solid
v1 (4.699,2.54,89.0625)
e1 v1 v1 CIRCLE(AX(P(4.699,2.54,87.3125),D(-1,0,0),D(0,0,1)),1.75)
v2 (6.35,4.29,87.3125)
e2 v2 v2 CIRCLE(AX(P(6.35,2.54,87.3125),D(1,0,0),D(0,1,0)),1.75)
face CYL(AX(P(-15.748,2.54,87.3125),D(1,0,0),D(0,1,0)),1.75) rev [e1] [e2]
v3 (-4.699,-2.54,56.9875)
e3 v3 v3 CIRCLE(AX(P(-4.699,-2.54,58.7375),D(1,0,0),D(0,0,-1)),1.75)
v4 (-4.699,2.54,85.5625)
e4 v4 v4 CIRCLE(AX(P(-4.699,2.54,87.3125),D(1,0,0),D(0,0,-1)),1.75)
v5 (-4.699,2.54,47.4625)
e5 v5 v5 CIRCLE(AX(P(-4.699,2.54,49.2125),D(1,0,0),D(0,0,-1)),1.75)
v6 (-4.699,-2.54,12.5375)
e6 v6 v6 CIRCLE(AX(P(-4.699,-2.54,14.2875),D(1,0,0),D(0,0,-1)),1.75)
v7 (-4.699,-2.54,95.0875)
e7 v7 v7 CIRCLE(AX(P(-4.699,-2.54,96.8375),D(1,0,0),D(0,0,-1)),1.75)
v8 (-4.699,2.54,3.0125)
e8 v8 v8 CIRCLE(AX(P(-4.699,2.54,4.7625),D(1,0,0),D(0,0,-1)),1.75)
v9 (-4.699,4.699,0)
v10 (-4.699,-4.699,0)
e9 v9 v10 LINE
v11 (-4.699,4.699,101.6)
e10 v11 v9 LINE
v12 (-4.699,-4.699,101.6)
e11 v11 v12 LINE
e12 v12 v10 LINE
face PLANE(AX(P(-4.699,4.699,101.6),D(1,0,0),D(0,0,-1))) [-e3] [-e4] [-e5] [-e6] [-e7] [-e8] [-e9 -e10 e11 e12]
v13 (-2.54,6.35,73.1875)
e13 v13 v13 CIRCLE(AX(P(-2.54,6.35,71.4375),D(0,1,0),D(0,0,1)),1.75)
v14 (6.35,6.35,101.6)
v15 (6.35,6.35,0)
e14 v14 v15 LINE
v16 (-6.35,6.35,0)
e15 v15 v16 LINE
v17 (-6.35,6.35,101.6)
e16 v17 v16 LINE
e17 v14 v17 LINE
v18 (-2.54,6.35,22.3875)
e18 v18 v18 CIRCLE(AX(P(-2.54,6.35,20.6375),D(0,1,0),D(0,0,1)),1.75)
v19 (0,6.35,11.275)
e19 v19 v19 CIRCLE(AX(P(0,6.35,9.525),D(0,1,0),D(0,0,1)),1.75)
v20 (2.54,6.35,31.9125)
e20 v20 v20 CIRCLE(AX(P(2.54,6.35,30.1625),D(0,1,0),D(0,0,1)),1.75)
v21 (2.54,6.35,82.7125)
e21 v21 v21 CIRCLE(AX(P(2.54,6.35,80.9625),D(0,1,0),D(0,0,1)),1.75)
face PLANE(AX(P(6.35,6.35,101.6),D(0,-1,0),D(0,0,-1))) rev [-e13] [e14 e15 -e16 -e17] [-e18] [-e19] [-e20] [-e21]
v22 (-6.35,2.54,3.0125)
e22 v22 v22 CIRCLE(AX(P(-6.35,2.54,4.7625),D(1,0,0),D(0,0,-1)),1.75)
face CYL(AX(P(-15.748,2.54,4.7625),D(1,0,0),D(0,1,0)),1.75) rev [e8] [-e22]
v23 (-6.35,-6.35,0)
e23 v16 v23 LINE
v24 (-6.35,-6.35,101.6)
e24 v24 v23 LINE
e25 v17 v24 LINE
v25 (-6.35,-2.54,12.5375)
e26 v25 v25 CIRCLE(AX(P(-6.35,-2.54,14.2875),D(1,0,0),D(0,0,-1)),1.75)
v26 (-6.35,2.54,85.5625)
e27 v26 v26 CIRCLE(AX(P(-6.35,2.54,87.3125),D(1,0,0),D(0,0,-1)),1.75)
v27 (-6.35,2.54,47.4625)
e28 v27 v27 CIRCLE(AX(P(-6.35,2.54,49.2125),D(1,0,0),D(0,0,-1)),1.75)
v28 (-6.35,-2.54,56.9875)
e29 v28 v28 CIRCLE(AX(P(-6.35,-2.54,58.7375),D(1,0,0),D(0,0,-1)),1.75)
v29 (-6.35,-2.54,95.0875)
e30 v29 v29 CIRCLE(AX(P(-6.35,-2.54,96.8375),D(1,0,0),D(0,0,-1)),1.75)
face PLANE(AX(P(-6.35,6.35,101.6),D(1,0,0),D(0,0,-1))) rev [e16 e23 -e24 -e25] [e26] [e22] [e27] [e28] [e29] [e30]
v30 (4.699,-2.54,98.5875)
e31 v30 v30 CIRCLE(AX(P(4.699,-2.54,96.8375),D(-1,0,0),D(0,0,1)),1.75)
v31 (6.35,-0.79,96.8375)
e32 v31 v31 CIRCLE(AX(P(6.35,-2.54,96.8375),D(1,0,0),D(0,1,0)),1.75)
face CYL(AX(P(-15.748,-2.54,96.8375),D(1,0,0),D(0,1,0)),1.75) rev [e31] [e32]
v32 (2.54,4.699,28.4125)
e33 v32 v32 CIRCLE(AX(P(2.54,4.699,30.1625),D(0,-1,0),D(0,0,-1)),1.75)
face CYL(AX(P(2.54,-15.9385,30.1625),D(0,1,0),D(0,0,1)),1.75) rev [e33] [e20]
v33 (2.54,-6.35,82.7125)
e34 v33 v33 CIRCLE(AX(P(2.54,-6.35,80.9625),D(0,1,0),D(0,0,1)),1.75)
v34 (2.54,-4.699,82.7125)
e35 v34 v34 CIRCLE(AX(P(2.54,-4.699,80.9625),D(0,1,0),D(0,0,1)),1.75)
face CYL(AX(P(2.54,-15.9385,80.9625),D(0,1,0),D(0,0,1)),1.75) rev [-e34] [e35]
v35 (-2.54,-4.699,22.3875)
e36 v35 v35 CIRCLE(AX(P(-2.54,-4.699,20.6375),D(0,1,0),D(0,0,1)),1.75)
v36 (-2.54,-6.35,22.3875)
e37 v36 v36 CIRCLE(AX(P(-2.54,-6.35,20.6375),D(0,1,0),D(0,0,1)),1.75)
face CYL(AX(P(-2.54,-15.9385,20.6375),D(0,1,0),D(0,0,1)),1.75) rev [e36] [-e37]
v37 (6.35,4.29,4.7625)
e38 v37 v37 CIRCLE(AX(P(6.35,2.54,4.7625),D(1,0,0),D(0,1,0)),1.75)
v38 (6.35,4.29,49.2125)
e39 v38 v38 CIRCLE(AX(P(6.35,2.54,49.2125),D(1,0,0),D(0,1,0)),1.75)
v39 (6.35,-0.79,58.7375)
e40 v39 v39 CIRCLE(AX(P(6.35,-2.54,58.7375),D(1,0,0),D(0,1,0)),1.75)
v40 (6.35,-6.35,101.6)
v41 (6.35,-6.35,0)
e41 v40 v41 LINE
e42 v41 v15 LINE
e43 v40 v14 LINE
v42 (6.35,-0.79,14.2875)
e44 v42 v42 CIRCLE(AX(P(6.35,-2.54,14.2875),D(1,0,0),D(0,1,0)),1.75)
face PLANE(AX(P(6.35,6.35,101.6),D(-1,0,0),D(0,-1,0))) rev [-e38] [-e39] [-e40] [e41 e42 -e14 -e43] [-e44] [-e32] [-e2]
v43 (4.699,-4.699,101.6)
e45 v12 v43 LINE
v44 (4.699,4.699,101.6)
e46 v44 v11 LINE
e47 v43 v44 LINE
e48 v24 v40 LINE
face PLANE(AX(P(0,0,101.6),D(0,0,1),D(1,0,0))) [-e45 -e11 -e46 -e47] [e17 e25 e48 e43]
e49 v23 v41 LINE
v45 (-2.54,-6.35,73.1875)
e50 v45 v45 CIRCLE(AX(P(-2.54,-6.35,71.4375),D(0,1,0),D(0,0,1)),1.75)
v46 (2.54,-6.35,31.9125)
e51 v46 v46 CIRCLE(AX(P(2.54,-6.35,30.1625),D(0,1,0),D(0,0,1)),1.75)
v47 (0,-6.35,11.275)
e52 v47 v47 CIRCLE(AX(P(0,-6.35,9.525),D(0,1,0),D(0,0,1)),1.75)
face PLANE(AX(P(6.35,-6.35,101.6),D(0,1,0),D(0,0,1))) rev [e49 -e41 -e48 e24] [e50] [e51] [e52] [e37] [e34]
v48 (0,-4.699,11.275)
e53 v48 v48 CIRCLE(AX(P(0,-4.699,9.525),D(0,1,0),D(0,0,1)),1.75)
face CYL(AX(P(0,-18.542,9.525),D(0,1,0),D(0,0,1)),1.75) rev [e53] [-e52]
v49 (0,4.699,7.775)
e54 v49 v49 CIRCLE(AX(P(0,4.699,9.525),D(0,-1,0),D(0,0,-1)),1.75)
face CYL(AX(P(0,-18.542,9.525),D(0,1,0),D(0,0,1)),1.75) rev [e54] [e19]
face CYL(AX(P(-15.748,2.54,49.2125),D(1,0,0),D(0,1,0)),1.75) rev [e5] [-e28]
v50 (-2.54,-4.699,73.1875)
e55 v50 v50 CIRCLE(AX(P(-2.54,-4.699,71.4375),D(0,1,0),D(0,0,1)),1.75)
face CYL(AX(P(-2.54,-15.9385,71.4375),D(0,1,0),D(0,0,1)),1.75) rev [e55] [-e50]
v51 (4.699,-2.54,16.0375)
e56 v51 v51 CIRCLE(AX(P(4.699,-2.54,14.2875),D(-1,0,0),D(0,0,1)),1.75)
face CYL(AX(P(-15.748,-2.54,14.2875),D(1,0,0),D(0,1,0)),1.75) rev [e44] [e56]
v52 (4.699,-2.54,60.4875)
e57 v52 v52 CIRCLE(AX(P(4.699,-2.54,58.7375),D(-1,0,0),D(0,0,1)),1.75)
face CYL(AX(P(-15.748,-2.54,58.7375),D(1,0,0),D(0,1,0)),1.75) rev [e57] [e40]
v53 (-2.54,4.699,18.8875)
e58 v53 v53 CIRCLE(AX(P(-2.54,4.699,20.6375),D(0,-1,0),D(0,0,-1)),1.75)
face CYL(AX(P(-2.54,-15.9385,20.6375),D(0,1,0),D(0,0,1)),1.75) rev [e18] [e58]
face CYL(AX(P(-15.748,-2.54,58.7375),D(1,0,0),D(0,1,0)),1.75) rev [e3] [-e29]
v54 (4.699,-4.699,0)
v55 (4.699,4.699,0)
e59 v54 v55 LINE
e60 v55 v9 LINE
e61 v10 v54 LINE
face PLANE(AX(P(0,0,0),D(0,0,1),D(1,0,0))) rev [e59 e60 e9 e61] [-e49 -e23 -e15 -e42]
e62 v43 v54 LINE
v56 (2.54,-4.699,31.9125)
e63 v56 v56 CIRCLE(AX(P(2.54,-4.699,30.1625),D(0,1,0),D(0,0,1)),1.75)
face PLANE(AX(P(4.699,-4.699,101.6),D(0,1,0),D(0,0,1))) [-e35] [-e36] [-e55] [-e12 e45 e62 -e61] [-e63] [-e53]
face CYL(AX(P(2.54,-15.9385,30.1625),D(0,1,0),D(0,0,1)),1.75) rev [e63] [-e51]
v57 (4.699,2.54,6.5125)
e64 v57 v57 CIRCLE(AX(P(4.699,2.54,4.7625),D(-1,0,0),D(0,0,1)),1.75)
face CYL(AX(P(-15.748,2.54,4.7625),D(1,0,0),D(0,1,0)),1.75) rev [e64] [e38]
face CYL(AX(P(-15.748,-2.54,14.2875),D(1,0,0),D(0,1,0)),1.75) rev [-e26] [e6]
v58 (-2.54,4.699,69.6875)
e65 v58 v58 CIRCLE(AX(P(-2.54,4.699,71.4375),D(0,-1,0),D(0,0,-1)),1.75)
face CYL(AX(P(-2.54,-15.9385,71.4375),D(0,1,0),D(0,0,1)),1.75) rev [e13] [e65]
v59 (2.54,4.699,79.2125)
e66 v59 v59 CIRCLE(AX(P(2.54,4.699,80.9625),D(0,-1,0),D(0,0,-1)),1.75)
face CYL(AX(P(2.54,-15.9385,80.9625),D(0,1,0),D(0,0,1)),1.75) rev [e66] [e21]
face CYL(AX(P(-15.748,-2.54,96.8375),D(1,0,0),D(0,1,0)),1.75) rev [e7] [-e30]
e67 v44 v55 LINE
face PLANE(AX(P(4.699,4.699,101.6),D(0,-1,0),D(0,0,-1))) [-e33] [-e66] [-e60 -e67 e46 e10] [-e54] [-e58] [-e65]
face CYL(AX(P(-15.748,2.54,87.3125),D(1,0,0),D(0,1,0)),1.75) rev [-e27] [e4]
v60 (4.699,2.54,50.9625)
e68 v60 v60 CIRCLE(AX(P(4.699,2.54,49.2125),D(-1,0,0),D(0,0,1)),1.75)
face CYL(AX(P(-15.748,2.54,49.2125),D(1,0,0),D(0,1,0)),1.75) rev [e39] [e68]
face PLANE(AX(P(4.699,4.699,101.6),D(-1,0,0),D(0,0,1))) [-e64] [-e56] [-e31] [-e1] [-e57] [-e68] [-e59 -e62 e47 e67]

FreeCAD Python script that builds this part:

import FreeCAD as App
import Part
import Sketcher

V = App.Vector
Q = App.Units.Quantity

doc = App.newDocument("Part")
body = doc.addObject("PartDesign::Body", "Body")

# Sketch on XY plane
sketch1 = doc.addObject("Sketcher::SketchObject", "Sketch")
body.addObject(sketch1)
sketch1.AttachmentSupport = (doc.XY_Plane, [""])
sketch1.MapMode = "FlatFace"
sketch1.addGeometry(Part.LineSegment(V(-6, -6, 0), V(6, -6, 0)), False)
sketch1.addGeometry(Part.LineSegment(V(6, -6, 0), V(6, 6, 0)), False)
sketch1.addGeometry(Part.LineSegment(V(6, 6, 0), V(-6, 6, 0)), False)
sketch1.addGeometry(Part.LineSegment(V(-6, 6, 0), V(-6, -6, 0)), False)
sketch1.addGeometry(Part.LineSegment(V(5, 5, 0), V(5, -5, 0)), False)
sketch1.addGeometry(Part.LineSegment(V(5, -5, 0), V(-5, -5, 0)), False)
sketch1.addGeometry(Part.LineSegment(V(-5, -5, 0), V(-5, 5, 0)), False)
sketch1.addGeometry(Part.LineSegment(V(-5, 5, 0), V(5, 5, 0)), False)
sketch1.addConstraint(Sketcher.Constraint("Coincident", 0, 2, 1, 1))
sketch1.addConstraint(Sketcher.Constraint("Coincident", 1, 2, 2, 1))
sketch1.addConstraint(Sketcher.Constraint("Coincident", 2, 2, 3, 1))
sketch1.addConstraint(Sketcher.Constraint("Coincident", 3, 2, 0, 1))
sketch1.addConstraint(Sketcher.Constraint("Coincident", 4, 2, 5, 1))
sketch1.addConstraint(Sketcher.Constraint("Coincident", 5, 2, 6, 1))
sketch1.addConstraint(Sketcher.Constraint("Coincident", 6, 2, 7, 1))
sketch1.addConstraint(Sketcher.Constraint("Coincident", 7, 2, 4, 1))
sketch1.addConstraint(Sketcher.Constraint("Horizontal", 0))
sketch1.addConstraint(Sketcher.Constraint("Vertical", 1))
sketch1.addConstraint(Sketcher.Constraint("Horizontal", 2))
sketch1.addConstraint(Sketcher.Constraint("Vertical", 3))
sketch1.addConstraint(Sketcher.Constraint("Vertical", 4))
sketch1.addConstraint(Sketcher.Constraint("Horizontal", 5))
sketch1.addConstraint(Sketcher.Constraint("Vertical", 6))
sketch1.addConstraint(Sketcher.Constraint("Horizontal", 7))
sketch1.addConstraint(Sketcher.Constraint("Symmetric", 0, 2, 2, 2, -1, 1))
sketch1.addConstraint(Sketcher.Constraint("Symmetric", 4, 2, 6, 2, -1, 1))
sketch1.addConstraint(Sketcher.Constraint("Equal", 2, 1))
sketch1.addConstraint(Sketcher.Constraint("Equal", 7, 4))
sketch1.addConstraint(Sketcher.Constraint("DistanceX", 0, 1, 0, 2, Q("0.5 in")))
sketch1.addConstraint(Sketcher.Constraint("DistanceX", 5, 2, 5, 1, Q("0.37 in")))
pad1 = doc.addObject("PartDesign::Pad", "Pad")
body.addObject(pad1)
pad1.Profile = sketch1
pad1.Length = Q("4 in")

# Sketch on XZ plane
sketch2 = doc.addObject("Sketcher::SketchObject", "Sketch001")
body.addObject(sketch2)
sketch2.AttachmentSupport = (doc.XZ_Plane, [""])
sketch2.MapMode = "FlatFace"
sketch2.AttachmentOffset = App.Placement(V(0, 0, -0.25 * 25.4), App.Rotation())
sketch2.addGeometry(Part.Circle(V(2.5, 81, 0), V(0, 0, 1), 1.8), False)
sketch2.addGeometry(Part.Circle(V(-2.5, 71.4, 0), V(0, 0, 1), 1.8), False)
sketch2.addGeometry(Part.Circle(V(2.5, 30.2, 0), V(0, 0, 1), 1.8), False)
sketch2.addGeometry(Part.Circle(V(-2.5, 20.6, 0), V(0, 0, 1), 1.8), False)
sketch2.addConstraint(Sketcher.Constraint("Equal", 0, 1))
sketch2.addConstraint(Sketcher.Constraint("Equal", 1, 2))
sketch2.addConstraint(Sketcher.Constraint("Equal", 2, 3))
sketch2.addConstraint(Sketcher.Constraint("Vertical", 0, 3, 2, 3))
sketch2.addConstraint(Sketcher.Constraint("Vertical", 1, 3, 3, 3))
sketch2.addConstraint(Sketcher.Constraint("DistanceY", 2, 3, 0, 3, Q("2 in")))
sketch2.addConstraint(Sketcher.Constraint("DistanceY", 3, 3, 1, 3, Q("2 in")))
sketch2.addConstraint(Sketcher.Constraint("DistanceX", -1, 1, 0, 3, Q("0.1 in")))
sketch2.addConstraint(Sketcher.Constraint("DistanceX", 1, 3, -1, 1, Q("0.1 in")))
sketch2.addConstraint(Sketcher.Constraint("Diameter", 0, 3.5))
sketch2.addConstraint(Sketcher.Constraint("DistanceY", -1, 1, 0, 3, Q("3.1875 in")))
sketch2.addConstraint(Sketcher.Constraint("DistanceY", -1, 1, 1, 3, Q("2.8125 in")))
pocket1 = doc.addObject("PartDesign::Pocket", "Pocket")
body.addObject(pocket1)
pocket1.Profile = sketch2
pocket1.Length = Q("0.8775 in")
pocket1.Reversed = True

# Sketch on YZ plane
sketch3 = doc.addObject("Sketcher::SketchObject", "Sketch002")
body.addObject(sketch3)
sketch3.AttachmentSupport = (doc.YZ_Plane, [""])
sketch3.MapMode = "FlatFace"
sketch3.AttachmentOffset = App.Placement(V(0, 0, 0.25 * 25.4), App.Rotation())
sketch3.addGeometry(Part.Circle(V(-2.5, 14.3, 0), V(0, 0, 1), 1.8), False)
sketch3.addGeometry(Part.Circle(V(2.5, 4.8, 0), V(0, 0, 1), 1.8), False)
sketch3.addGeometry(Part.Circle(V(-2.5, 96.8, 0), V(0, 0, 1), 1.8), False)
sketch3.addGeometry(Part.Circle(V(2.5, 87.3, 0), V(0, 0, 1), 1.8), False)
sketch3.addGeometry(Part.Circle(V(-2.5, 58.7, 0), V(0, 0, 1), 1.8), False)
sketch3.addGeometry(Part.Circle(V(2.5, 49.2, 0), V(0, 0, 1), 1.8), False)
sketch3.addConstraint(Sketcher.Constraint("Equal", 0, 1))
sketch3.addConstraint(Sketcher.Constraint("Equal", 1, 2))
sketch3.addConstraint(Sketcher.Constraint("Equal", 2, 3))
sketch3.addConstraint(Sketcher.Constraint("Equal", 3, 4))
sketch3.addConstraint(Sketcher.Constraint("Equal", 4, 5))
sketch3.addConstraint(Sketcher.Constraint("Vertical", 0, 3, 2, 3))
sketch3.addConstraint(Sketcher.Constraint("Vertical", 1, 3, 3, 3))
sketch3.addConstraint(Sketcher.Constraint("Vertical", 2, 3, 4, 3))
sketch3.addConstraint(Sketcher.Constraint("Vertical", 3, 3, 5, 3))
sketch3.addConstraint(Sketcher.Constraint("DistanceX", 0, 3, -1, 1, Q("0.1 in")))
sketch3.addConstraint(Sketcher.Constraint("DistanceX", -1, 1, 1, 3, Q("0.1 in")))
sketch3.addConstraint(Sketcher.Constraint("DistanceY", 4, 3, 2, 3, Q("1.5 in")))
sketch3.addConstraint(Sketcher.Constraint("DistanceY", 5, 3, 3, 3, Q("1.5 in")))
sketch3.addConstraint(Sketcher.Constraint("Diameter", 0, 3.5))
sketch3.addConstraint(Sketcher.Constraint("DistanceY", 0, 3, 2, 3, Q("3.25 in")))
sketch3.addConstraint(Sketcher.Constraint("DistanceY", 1, 3, 3, 3, Q("3.25 in")))
sketch3.addConstraint(Sketcher.Constraint("DistanceY", -1, 1, 0, 3, Q("0.5625 in")))
sketch3.addConstraint(Sketcher.Constraint("DistanceY", -1, 1, 1, 3, Q("0.1875 in")))
pocket2 = doc.addObject("PartDesign::Pocket", "Pocket001")
body.addObject(pocket2)
pocket2.Profile = sketch3
pocket2.Length = Q("0.87 in")

# Sketch on XZ plane
sketch4 = doc.addObject("Sketcher::SketchObject", "Sketch003")
body.addObject(sketch4)
sketch4.AttachmentSupport = (doc.XZ_Plane, [""])
sketch4.MapMode = "FlatFace"
sketch4.AttachmentOffset = App.Placement(V(0, 0, -0.25 * 25.4), App.Rotation())
sketch4.addGeometry(Part.Circle(V(0, 9.5, 0), V(0, 0, 1), 1.8), False)
sketch4.addConstraint(Sketcher.Constraint("PointOnObject", 0, 3, -2))
sketch4.addConstraint(Sketcher.Constraint("Diameter", 0, 3.5))
sketch4.addConstraint(Sketcher.Constraint("DistanceY", -1, 1, 0, 3, Q("0.375 in")))
pocket3 = doc.addObject("PartDesign::Pocket", "Pocket002")
body.addObject(pocket3)
pocket3.Profile = sketch4
pocket3.Length = Q("0.98 in")
pocket3.Reversed = True

doc.recompute()
